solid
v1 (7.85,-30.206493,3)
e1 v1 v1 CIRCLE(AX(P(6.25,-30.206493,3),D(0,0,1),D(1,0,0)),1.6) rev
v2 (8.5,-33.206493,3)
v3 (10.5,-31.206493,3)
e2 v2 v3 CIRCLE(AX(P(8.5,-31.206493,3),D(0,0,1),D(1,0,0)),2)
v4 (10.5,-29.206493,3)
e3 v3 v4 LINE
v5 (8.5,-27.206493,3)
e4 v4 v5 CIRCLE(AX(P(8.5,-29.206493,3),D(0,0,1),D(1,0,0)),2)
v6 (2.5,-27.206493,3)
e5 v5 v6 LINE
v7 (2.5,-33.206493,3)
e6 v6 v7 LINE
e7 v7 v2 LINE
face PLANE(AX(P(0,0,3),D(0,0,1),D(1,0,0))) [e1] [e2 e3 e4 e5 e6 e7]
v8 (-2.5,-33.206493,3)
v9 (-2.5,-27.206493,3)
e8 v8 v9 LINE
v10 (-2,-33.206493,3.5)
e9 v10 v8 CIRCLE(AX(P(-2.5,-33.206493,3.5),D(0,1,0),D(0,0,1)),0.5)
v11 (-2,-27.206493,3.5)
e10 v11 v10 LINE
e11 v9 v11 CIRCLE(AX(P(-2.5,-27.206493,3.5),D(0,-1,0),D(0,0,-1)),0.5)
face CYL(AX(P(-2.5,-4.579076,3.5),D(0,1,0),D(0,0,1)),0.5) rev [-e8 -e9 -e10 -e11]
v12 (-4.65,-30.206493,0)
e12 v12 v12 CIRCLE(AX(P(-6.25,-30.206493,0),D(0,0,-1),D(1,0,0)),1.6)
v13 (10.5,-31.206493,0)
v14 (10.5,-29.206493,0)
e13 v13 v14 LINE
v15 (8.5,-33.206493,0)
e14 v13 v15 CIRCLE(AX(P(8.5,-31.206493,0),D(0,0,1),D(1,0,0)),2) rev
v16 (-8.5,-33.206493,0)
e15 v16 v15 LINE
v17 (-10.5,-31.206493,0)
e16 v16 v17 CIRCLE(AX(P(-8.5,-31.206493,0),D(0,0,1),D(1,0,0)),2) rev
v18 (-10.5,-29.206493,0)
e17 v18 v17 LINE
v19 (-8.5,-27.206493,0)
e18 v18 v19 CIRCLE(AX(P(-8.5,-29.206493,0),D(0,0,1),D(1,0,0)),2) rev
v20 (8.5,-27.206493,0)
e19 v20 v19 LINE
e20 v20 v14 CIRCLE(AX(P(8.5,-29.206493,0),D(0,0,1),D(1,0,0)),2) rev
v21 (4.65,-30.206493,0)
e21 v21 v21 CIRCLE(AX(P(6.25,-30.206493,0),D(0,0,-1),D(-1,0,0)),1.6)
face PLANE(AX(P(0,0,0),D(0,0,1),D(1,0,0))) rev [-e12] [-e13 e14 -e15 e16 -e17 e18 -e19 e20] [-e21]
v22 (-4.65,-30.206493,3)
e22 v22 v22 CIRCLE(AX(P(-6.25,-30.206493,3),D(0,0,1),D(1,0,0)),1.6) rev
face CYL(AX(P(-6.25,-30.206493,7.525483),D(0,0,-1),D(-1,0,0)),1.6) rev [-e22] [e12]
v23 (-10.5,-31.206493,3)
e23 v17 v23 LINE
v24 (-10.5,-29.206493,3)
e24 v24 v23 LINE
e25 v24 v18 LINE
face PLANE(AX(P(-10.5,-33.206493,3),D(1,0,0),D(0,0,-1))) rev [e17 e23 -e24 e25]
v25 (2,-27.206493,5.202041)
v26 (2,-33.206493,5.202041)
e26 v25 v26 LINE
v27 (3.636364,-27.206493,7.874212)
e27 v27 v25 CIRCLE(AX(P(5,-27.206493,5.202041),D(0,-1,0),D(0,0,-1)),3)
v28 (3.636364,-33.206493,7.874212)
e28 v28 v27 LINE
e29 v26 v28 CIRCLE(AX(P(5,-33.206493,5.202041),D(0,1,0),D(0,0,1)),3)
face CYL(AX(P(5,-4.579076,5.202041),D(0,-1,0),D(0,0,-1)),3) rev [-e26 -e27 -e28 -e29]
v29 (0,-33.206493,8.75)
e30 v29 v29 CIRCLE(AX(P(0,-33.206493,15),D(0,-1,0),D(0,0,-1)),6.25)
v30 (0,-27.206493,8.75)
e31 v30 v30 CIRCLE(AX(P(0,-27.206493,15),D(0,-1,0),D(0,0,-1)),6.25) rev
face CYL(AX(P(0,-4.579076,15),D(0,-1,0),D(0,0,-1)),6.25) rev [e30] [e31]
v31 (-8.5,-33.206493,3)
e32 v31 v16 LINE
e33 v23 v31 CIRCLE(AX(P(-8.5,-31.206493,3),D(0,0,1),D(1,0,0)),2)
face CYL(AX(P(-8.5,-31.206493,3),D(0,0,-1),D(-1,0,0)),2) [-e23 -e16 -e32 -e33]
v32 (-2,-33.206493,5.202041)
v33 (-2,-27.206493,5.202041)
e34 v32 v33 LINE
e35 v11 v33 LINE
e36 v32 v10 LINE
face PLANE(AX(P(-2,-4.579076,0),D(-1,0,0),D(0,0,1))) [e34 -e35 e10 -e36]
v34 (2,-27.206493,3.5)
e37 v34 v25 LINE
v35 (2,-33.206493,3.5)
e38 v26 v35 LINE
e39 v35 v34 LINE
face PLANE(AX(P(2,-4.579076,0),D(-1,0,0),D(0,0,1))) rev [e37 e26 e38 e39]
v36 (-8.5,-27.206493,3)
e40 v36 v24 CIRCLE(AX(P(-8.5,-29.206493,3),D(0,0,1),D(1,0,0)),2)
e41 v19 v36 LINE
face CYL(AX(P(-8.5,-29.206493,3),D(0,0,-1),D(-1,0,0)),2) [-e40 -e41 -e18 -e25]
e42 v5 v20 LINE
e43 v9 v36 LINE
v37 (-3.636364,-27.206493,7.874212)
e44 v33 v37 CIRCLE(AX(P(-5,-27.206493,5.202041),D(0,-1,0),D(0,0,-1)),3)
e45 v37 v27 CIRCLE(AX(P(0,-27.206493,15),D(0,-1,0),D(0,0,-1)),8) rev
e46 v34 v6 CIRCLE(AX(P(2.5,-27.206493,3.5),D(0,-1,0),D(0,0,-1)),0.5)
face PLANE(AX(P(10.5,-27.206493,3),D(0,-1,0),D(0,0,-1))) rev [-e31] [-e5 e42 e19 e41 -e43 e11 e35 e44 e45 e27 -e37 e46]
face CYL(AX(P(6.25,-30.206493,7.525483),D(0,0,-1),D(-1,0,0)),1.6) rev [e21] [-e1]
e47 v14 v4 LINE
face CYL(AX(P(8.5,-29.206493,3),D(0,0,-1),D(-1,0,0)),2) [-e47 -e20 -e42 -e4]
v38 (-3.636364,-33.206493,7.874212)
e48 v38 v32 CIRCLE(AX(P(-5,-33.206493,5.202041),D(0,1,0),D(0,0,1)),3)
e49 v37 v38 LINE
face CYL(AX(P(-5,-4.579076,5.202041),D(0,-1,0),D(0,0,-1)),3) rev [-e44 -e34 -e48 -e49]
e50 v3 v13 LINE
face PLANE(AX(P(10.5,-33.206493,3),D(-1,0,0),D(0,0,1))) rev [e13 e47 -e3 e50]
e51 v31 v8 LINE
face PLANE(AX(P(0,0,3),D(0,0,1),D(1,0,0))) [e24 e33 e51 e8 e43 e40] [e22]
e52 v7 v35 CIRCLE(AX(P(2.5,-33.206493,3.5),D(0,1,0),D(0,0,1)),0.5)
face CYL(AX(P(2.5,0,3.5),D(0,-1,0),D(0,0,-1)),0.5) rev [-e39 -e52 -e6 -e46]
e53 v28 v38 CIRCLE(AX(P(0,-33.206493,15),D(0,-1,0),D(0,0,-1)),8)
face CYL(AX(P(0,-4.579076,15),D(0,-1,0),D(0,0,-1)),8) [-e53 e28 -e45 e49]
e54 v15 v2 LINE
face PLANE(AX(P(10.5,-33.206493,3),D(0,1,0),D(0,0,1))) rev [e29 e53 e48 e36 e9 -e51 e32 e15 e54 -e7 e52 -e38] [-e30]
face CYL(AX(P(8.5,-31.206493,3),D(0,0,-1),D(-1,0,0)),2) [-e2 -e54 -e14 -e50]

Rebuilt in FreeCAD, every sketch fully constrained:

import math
import FreeCAD as App
import Part
import Sketcher
Q = App.Units.Quantity


def edges_at(feature, points):
    """Names of the edges that pass closest to the given points."""
    edges = feature.Shape.Edges
    near = lambda p: min(range(len(edges)), key=lambda i: edges[i].distToShape(Part.Vertex(*p))[0])
    return sorted({f"Edge{near(p) + 1}" for p in points})

doc = App.newDocument("Part")
body = doc.addObject("PartDesign::Body", "Body")

# Sketch on XY plane
sketch1 = body.newObject("Sketcher::SketchObject", "Sketch")
sketch1.AttachmentSupport = (doc.getObject("XY_Plane"), [""])
sketch1.MapMode = "FlatFace"
sketch1.addGeometry([
    Part.LineSegment(App.Vector(-10, -27, 0), App.Vector(-10, -33, 0)),
    Part.LineSegment(App.Vector(-10, -33, 0), App.Vector(10, -33, 0)),
    Part.LineSegment(App.Vector(10, -33, 0), App.Vector(10, -27, 0)),
    Part.LineSegment(App.Vector(10, -27, 0), App.Vector(-10, -27, 0)),
], False)
sketch1.addConstraint([
    Sketcher.Constraint("Coincident", 0, 2, 1, 1),
    Sketcher.Constraint("Coincident", 1, 2, 2, 1),
    Sketcher.Constraint("Coincident", 2, 2, 3, 1),
    Sketcher.Constraint("Coincident", 3, 2, 0, 1),
    Sketcher.Constraint("Vertical", 0),
    Sketcher.Constraint("Horizontal", 1),
    Sketcher.Constraint("Vertical", 2),
    Sketcher.Constraint("Horizontal", 3),
    Sketcher.Constraint("DistanceX", 1, 1, 1, 2, Q("21 mm")),
    Sketcher.Constraint("DistanceY", 0, 2, 0, 1, Q("6 mm")),
    Sketcher.Constraint("DistanceX", 0, 2, -1, 1, Q("10.5 mm")),
    Sketcher.Constraint("DistanceY", 0, 2, -1, 1, Q("33.206493 mm")),
])
pad1 = body.newObject("PartDesign::Pad", "Pad")
pad1.Profile = sketch1
pad1.Length = 3

# Sketch on XZ plane
sketch2 = body.newObject("Sketcher::SketchObject", "Sketch001")
sketch2.AttachmentSupport = (doc.getObject("XZ_Plane"), [""])
sketch2.MapMode = "FlatFace"
sketch2.AttachmentOffset = App.Placement(App.Vector(0, 0, 33.206493), App.Rotation())
sketch2.addGeometry([
    Part.ArcOfCircle(Part.Circle(App.Vector(0, 15, 0), App.Vector(0, 0, 1), 8), math.radians(-76), math.radians(256)),  # 0
    Part.LineSegment(App.Vector(-2, 7.3, 0), App.Vector(-2, 3, 0)),  # 1
    Part.LineSegment(App.Vector(-2, 3, 0), App.Vector(2, 3, 0)),  # 2
    Part.LineSegment(App.Vector(2, 3, 0), App.Vector(2, 7.3, 0)),  # 3
    Part.Circle(App.Vector(0, 15, 0), App.Vector(0, 0, 1), 6.2),  # 4
], False)
sketch2.addConstraint([
    Sketcher.Constraint("Coincident", 0, 2, 1, 1),
    Sketcher.Constraint("Coincident", 1, 2, 2, 1),
    Sketcher.Constraint("Coincident", 2, 2, 3, 1),
    Sketcher.Constraint("Coincident", 3, 2, 0, 1),
    Sketcher.Constraint("Vertical", 1),
    Sketcher.Constraint("Horizontal", 2),
    Sketcher.Constraint("Vertical", 3),
    Sketcher.Constraint("Coincident", 4, 3, 0, 3),
    Sketcher.Constraint("Symmetric", 0, 2, 3, 2, -2),
    Sketcher.Constraint("Radius", 0, Q("8 mm")),
    Sketcher.Constraint("Diameter", 4, Q("12.5 mm")),
    Sketcher.Constraint("DistanceX", 2, 1, 2, 2, Q("4 mm")),
    Sketcher.Constraint("DistanceY", -1, 1, 0, 3, Q("15 mm")),
    Sketcher.Constraint("DistanceY", -1, 1, 1, 2, Q("3 mm")),
])
pad2 = body.newObject("PartDesign::Pad", "Pad001")
pad2.Profile = sketch2
pad2.Length = 6
pad2.Reversed = True

# Sketch on XY plane
sketch3 = body.newObject("Sketcher::SketchObject", "Sketch002")
sketch3.AttachmentSupport = (doc.getObject("XY_Plane"), [""])
sketch3.MapMode = "FlatFace"
sketch3.addGeometry([
    Part.Circle(App.Vector(6.2, -30.2, 0), App.Vector(0, 0, 1), 1.6),
    Part.Circle(App.Vector(-6.2, -30.2, 0), App.Vector(0, 0, 1), 1.6),
], False)
sketch3.addConstraint([
    Sketcher.Constraint("Equal", 0, 1),
    Sketcher.Constraint("Symmetric", 0, 3, 1, 3, -2),
    Sketcher.Constraint("Diameter", 0, Q("3.2 mm")),
    Sketcher.Constraint("DistanceX", 1, 3, 0, 3, Q("12.5 mm")),
    Sketcher.Constraint("DistanceY", 0, 3, -1, 1, Q("30.206493 mm")),
])
pocket1 = body.newObject("PartDesign::Pocket", "Pocket")
pocket1.Profile = sketch3
pocket1.Length = 3
pocket1.Reversed = True
doc.recompute()

fillet = body.newObject("PartDesign::Fillet", "Fillet")
fillet.Base = (pocket1, edges_at(pocket1, [(-2, -30.206, 3), (2, -30.206, 3)]))
fillet.Radius = 0.5
doc.recompute()

fillet2 = body.newObject("PartDesign::Fillet", "Fillet001")
fillet2.Base = (fillet, edges_at(fillet, [(2, -30.206, 7.254), (-2, -30.206, 7.254)]))
fillet2.Radius = 3
doc.recompute()

fillet3 = body.newObject("PartDesign::Fillet", "Fillet002")
fillet3.Base = (fillet2, edges_at(fillet2, [
    (10.5, -33.206, 1.5),
    (-10.5, -33.206, 1.5),
    (-10.5, -27.206, 1.5),
    (10.5, -27.206, 1.5),
]))
fillet3.Radius = 2

doc.recompute()
